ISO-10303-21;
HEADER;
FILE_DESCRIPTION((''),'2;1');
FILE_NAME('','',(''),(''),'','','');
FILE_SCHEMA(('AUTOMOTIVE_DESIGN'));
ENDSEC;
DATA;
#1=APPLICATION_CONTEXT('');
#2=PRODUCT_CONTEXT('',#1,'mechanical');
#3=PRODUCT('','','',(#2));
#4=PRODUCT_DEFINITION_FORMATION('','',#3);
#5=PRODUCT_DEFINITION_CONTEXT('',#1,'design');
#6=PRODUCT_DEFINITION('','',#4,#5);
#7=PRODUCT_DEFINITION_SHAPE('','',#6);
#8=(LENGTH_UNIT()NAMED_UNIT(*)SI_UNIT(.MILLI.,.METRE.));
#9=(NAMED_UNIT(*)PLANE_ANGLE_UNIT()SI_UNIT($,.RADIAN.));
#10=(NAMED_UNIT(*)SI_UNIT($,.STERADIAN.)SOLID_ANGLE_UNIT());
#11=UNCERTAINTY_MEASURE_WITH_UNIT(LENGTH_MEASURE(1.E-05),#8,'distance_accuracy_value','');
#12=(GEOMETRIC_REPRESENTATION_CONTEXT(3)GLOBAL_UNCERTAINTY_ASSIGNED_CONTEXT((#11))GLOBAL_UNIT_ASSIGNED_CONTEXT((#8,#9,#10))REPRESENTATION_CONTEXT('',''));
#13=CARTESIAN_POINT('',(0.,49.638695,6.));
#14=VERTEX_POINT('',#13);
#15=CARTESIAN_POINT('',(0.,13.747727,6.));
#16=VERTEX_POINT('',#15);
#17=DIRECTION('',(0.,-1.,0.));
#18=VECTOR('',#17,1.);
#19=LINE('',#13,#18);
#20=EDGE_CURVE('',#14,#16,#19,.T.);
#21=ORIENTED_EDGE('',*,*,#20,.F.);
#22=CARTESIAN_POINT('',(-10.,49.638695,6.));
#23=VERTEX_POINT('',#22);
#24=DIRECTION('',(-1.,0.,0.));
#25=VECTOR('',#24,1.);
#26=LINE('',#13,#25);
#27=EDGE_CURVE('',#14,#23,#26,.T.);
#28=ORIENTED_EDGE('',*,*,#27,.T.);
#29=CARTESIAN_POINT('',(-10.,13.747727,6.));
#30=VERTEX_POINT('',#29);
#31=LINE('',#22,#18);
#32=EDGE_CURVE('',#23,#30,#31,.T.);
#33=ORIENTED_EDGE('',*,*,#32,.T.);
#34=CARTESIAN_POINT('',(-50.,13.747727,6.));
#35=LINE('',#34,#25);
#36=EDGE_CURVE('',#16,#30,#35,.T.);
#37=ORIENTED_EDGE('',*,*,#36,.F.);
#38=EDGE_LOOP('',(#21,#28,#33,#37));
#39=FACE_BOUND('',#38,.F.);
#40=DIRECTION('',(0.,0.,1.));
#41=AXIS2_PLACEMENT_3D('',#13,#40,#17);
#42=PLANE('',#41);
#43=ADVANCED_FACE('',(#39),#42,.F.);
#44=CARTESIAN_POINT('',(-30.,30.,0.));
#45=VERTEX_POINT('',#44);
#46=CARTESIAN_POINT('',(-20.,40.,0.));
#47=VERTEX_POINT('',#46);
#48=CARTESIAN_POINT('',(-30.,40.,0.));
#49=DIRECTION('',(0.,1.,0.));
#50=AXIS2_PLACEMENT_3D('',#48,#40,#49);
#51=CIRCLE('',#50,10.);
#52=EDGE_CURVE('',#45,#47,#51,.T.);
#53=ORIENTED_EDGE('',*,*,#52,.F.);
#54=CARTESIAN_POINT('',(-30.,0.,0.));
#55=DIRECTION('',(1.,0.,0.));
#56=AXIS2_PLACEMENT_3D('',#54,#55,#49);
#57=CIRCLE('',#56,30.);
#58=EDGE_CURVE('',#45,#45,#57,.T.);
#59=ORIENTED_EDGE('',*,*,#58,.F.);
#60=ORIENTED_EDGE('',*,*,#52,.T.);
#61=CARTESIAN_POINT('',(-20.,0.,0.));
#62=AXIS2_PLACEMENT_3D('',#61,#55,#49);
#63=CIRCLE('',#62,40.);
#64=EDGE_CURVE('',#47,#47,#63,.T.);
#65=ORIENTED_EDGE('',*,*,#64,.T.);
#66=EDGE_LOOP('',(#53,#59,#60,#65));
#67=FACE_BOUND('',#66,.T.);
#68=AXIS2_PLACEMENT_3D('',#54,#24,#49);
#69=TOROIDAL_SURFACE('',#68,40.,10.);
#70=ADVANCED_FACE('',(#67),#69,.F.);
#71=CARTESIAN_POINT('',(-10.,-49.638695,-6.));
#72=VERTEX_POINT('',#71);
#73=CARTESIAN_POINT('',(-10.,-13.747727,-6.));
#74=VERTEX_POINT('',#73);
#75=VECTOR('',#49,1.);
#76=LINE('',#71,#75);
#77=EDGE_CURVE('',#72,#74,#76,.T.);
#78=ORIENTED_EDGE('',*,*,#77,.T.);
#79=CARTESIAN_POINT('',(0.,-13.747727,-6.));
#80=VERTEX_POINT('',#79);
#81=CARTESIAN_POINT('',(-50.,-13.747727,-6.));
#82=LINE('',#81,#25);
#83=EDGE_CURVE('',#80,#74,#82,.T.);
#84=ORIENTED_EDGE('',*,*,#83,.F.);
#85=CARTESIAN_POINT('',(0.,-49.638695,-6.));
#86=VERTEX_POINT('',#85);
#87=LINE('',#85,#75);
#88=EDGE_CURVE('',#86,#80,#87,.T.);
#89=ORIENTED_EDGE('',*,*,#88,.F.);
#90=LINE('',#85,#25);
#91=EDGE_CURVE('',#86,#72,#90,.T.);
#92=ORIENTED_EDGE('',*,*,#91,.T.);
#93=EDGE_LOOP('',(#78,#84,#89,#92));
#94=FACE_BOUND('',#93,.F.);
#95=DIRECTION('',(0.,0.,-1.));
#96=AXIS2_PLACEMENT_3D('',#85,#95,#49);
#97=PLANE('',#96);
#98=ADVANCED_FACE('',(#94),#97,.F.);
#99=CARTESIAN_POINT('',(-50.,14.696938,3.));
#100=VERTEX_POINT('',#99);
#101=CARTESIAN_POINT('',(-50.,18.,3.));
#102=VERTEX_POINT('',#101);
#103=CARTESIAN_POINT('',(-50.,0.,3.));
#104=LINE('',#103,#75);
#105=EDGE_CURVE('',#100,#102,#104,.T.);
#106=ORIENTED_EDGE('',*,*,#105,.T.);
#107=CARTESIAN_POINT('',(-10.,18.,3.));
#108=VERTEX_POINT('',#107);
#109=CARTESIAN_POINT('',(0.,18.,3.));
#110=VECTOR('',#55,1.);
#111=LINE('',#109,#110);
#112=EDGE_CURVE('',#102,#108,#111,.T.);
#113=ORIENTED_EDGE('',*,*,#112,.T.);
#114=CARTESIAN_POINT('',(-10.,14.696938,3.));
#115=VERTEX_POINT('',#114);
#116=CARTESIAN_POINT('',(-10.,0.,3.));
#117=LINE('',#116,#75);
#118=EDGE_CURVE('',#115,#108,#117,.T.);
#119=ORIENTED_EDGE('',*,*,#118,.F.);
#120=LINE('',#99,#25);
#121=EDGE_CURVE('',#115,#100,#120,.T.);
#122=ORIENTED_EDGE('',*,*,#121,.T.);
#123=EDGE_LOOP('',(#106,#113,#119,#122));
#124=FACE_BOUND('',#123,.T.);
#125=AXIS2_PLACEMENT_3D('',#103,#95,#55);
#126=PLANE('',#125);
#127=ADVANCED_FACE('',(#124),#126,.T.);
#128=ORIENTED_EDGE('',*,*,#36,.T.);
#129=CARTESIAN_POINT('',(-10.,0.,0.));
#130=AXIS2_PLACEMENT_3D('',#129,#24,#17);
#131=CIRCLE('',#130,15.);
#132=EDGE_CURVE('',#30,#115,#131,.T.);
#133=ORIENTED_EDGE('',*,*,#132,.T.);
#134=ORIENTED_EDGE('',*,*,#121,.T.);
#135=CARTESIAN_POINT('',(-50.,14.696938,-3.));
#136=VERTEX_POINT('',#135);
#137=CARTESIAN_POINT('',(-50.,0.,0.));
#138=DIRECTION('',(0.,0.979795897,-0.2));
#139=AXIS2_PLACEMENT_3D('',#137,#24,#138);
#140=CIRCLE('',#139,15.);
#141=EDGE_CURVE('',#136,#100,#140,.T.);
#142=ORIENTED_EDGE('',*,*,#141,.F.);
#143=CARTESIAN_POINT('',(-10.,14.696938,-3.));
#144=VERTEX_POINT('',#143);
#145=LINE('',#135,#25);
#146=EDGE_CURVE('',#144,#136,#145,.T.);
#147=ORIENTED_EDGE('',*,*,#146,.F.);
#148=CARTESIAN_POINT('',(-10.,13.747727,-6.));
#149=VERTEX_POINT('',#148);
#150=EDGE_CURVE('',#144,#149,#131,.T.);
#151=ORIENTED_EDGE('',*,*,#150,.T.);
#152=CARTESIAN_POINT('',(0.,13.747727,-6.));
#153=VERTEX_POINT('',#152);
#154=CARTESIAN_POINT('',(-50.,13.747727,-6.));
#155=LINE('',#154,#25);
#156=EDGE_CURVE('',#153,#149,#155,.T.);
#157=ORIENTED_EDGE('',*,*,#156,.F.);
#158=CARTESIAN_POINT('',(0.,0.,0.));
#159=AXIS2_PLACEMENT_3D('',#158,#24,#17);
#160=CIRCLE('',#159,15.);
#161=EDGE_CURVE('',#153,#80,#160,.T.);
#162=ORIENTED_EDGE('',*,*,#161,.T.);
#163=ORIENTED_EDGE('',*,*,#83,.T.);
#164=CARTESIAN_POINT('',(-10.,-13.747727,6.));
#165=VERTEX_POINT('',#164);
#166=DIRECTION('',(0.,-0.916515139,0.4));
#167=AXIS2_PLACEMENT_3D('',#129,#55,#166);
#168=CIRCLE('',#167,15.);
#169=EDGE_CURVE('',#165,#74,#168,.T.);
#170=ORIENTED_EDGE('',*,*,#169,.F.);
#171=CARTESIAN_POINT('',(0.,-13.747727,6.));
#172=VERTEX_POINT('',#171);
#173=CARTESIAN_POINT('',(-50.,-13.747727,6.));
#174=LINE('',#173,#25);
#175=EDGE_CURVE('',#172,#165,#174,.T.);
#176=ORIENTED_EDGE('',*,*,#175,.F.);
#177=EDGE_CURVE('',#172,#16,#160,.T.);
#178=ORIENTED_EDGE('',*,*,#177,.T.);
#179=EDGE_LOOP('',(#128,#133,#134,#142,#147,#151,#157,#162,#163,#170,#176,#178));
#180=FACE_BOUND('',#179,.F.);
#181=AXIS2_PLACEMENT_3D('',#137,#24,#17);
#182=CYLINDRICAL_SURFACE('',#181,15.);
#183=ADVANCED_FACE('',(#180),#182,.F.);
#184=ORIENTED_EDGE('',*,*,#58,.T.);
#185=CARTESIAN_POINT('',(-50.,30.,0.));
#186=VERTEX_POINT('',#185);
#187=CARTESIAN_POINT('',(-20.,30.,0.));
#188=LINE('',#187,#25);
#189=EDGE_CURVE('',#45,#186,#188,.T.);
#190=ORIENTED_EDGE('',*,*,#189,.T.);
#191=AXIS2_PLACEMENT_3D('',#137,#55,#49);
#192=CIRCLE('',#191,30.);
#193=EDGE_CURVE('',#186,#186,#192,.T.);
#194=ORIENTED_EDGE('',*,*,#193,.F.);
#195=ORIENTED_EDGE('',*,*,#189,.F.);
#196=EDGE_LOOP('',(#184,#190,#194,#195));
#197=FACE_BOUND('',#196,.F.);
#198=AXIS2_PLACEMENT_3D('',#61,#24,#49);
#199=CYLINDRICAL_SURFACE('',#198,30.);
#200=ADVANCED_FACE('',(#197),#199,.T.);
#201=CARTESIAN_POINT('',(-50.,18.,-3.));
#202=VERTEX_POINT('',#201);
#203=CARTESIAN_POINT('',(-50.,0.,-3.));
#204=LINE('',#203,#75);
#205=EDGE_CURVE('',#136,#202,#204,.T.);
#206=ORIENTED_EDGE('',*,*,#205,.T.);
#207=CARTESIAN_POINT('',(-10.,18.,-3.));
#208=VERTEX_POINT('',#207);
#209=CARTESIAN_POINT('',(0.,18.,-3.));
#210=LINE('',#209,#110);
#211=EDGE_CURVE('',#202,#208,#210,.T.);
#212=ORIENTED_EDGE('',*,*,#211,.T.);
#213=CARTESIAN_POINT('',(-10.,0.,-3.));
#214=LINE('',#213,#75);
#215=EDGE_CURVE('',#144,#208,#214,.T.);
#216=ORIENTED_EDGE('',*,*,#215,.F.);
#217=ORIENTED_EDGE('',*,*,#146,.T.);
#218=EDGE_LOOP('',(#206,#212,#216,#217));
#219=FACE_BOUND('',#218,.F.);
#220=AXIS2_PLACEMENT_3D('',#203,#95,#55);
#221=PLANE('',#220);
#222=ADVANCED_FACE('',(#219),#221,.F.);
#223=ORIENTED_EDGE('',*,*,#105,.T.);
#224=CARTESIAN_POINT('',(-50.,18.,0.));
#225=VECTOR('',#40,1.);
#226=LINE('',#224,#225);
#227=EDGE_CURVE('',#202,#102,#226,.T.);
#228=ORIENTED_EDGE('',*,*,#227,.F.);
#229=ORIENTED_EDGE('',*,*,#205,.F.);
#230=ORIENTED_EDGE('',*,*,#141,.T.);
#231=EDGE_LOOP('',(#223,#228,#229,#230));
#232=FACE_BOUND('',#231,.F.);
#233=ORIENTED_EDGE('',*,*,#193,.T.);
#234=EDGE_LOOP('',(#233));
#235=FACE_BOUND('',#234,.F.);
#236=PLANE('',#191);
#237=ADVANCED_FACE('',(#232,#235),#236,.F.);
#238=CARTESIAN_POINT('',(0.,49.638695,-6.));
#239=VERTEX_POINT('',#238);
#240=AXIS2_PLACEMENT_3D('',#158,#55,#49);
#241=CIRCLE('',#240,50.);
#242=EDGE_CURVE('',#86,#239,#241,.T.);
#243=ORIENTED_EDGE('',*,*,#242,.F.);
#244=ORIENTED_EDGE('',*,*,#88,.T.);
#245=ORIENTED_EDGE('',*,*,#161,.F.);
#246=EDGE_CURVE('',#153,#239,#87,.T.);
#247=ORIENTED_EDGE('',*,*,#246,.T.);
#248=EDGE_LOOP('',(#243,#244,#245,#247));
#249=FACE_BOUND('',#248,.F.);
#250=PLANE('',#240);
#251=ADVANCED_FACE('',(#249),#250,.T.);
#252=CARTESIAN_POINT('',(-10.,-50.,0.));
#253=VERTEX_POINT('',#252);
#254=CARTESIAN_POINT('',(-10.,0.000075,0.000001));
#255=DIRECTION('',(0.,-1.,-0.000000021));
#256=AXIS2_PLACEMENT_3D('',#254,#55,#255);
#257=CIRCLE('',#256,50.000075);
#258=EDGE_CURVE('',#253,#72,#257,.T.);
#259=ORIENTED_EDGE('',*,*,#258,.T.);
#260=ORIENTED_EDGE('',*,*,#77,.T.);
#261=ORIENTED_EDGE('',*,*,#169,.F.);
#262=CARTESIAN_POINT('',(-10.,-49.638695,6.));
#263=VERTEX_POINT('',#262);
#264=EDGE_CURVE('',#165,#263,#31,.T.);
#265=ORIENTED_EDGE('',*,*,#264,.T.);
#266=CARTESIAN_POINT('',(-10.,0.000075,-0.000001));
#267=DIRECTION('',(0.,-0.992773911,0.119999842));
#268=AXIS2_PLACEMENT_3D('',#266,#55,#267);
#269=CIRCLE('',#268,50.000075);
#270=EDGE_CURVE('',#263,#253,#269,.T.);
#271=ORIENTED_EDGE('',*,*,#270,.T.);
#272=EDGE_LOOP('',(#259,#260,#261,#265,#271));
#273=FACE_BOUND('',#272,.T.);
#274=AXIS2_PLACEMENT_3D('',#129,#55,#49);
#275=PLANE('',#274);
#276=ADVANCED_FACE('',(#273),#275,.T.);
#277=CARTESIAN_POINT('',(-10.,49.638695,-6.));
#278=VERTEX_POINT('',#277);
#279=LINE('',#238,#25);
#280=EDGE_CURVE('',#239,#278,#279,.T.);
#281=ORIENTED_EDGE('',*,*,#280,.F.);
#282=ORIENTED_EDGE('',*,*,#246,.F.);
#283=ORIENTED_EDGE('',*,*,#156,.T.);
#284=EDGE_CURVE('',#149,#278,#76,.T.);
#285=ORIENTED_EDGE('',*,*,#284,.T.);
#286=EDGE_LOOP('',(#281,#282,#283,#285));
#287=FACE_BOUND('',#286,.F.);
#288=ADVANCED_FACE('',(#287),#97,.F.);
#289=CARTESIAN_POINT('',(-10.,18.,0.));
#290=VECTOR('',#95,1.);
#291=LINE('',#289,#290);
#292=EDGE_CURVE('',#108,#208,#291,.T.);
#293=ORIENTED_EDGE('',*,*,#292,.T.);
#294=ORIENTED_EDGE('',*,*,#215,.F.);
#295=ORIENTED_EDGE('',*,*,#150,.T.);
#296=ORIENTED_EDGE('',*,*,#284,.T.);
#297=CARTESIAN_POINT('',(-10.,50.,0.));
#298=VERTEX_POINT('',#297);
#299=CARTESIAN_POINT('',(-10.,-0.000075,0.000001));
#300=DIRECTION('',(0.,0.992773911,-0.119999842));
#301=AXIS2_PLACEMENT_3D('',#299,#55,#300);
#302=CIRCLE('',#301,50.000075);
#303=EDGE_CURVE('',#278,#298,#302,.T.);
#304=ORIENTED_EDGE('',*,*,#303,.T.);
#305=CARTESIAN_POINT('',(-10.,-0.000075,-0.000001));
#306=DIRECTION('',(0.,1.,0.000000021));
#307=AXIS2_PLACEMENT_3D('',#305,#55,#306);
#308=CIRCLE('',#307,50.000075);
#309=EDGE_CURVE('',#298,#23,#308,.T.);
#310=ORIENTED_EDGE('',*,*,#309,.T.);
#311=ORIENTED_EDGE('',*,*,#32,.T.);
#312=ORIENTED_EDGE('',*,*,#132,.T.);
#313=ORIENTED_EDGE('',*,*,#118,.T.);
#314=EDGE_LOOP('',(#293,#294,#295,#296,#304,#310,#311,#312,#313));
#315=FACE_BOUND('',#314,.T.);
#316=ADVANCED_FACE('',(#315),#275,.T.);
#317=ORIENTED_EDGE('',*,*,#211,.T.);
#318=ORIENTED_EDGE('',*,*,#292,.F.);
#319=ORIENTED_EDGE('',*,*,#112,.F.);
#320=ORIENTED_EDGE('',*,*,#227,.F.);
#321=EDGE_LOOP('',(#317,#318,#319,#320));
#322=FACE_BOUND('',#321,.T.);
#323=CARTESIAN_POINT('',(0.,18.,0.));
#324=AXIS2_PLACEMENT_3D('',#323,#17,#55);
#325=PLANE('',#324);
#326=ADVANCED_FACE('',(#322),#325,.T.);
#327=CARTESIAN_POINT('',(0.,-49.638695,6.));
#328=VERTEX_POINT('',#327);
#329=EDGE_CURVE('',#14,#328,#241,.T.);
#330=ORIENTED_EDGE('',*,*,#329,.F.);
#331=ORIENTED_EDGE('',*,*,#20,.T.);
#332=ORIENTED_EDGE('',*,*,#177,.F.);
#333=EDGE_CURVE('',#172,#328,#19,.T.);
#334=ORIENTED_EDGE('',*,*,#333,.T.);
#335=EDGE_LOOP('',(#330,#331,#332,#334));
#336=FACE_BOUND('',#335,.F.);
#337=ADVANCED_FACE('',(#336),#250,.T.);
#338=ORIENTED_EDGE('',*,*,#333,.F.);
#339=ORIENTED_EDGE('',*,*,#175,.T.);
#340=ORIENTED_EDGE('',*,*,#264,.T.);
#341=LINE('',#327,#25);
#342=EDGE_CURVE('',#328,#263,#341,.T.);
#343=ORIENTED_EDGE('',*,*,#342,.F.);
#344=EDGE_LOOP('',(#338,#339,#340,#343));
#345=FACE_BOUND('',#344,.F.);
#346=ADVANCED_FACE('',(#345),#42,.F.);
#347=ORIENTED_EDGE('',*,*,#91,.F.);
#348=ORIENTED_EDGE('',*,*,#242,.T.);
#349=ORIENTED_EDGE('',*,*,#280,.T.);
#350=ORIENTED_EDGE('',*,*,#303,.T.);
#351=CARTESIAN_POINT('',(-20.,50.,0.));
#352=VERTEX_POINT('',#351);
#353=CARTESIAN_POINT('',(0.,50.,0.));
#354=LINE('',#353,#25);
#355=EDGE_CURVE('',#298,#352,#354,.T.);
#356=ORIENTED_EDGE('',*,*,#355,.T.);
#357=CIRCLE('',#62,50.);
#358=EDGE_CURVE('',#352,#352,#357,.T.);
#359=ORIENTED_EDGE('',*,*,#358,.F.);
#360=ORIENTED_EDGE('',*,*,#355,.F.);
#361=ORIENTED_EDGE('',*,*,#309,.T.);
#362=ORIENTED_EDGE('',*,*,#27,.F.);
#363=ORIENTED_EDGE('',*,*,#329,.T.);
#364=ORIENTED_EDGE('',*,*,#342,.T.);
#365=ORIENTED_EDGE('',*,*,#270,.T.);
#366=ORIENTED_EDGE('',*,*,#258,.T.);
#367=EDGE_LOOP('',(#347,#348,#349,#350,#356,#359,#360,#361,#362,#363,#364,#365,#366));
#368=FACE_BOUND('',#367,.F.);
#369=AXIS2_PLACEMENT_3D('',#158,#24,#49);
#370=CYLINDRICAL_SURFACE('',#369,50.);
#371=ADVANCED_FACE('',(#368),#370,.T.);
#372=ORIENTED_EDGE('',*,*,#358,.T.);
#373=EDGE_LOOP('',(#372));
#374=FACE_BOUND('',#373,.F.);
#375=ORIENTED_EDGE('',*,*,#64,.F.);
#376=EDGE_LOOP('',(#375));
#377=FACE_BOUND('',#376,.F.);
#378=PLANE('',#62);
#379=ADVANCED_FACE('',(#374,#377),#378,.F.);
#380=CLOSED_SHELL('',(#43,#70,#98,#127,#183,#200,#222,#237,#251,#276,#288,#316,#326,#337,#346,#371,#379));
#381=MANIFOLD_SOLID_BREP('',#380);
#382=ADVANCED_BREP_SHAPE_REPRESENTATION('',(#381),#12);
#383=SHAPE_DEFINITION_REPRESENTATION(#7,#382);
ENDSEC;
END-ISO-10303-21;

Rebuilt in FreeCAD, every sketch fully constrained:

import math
import FreeCAD as App
import Part
import Sketcher
Q = App.Units.Quantity


def edges_at(feature, points):
    """Names of the edges that pass closest to the given points."""
    edges = feature.Shape.Edges
    near = lambda p: min(range(len(edges)), key=lambda i: edges[i].distToShape(Part.Vertex(*p))[0])
    return sorted({f"Edge{near(p) + 1}" for p in points})


def add_polygon(sketch, points):
    """Adds a closed chain of lines whose ends are joined by coincident constraints."""
    first, n = sketch.GeometryCount, len(points)
    for a, b in zip(points, points[1:] + points[:1]):
        sketch.addGeometry(Part.LineSegment(App.Vector(*a, 0), App.Vector(*b, 0)), False)
    for i in range(n):
        sketch.addConstraint(Sketcher.Constraint("Coincident", first + i, 2, first + (i + 1) % n, 1))

doc = App.newDocument("Part")
params = doc.addObject("Spreadsheet::Sheet", "Params")
for row, (alias, value) in enumerate([
    ("sketch1_width", "50 mm"),
    ("sketch1_width2", "20 mm"),
    ("revolution_angle", "360 deg"),
    ("pocket1_length", "10 mm"),
    ("sketch3_diameter", "30 mm"),
    ("pocket2_length", "52.4 mm"),
    ("sketch4_width", "100 mm"),
    ("sketch4_height", "6 mm"),
    ("pocket3_length", "18 mm"),
    ("fillet_radius", "10 mm"),
], start=1):
    params.set(f"A{row}", alias)
    params.set(f"B{row}", "=" + value)
    params.setAlias(f"B{row}", alias)

body = doc.addObject("PartDesign::Body", "Body")

# Sketch on XY plane
sketch1 = body.newObject("Sketcher::SketchObject", "Sketch")
sketch1.AttachmentSupport = (doc.getObject("XY_Plane"), [""])
sketch1.MapMode = "FlatFace"
add_polygon(sketch1, [(-50, 0), (0, 0), (0, 50), (-20, 50), (-20, 30), (-50, 30)])  # lines 0-5
sketch1.addConstraint([
    Sketcher.Constraint("Horizontal", 0),
    Sketcher.Constraint("Vertical", 1),
    Sketcher.Constraint("Horizontal", 2),
    Sketcher.Constraint("Vertical", 3),
    Sketcher.Constraint("Horizontal", 4),
    Sketcher.Constraint("Vertical", 5),
    Sketcher.Constraint("Coincident", 0, 2, -1, 1),
    Sketcher.Constraint("Equal", 0, 1),
    Sketcher.Constraint("Equal", 2, 3),
    Sketcher.Constraint("DistanceX", 0, 1, 0, 2, Q("50 mm")),
    Sketcher.Constraint("DistanceX", 2, 2, 2, 1, Q("20 mm")),
])
sketch1.setExpression("Constraints[15]", "Params.sketch1_width")
sketch1.setExpression("Constraints[16]", "Params.sketch1_width2")
revolution = body.newObject("PartDesign::Revolution", "Revolution")
revolution.Profile = sketch1
revolution.ReferenceAxis = (sketch1, ["H_Axis"])
revolution.setExpression("Angle", "Params.revolution_angle")

# Sketch on YZ plane
sketch2 = body.newObject("Sketcher::SketchObject", "Sketch001")
sketch2.AttachmentSupport = (doc.getObject("YZ_Plane"), [""])
sketch2.MapMode = "FlatFace"
sketch2.addGeometry([
    Part.LineSegment(App.Vector(49.638695, 6, 0), App.Vector(-49.638695, 6, 0)),  # 0
    Part.ArcOfCircle(Part.Circle(App.Vector(0.000075, -0.000001, 0), App.Vector(0, 0, 1), 50.000075), math.radians(173.107907), math.radians(179.999999)),  # 1
    Part.ArcOfCircle(Part.Circle(App.Vector(0.000075, 0.000001, 0), App.Vector(0, 0, 1), 50.000075), math.radians(-179.999999), math.radians(-173.107907)),  # 2
    Part.LineSegment(App.Vector(-49.638695, -6, 0), App.Vector(49.638695, -6, 0)),  # 3
    Part.ArcOfCircle(Part.Circle(App.Vector(-0.000075, 0.000001, 0), App.Vector(0, 0, 1), 50.000075), math.radians(-6.892093), math.radians(-0.000001)),  # 4
    Part.ArcOfCircle(Part.Circle(App.Vector(-0.000075, -0.000001, 0), App.Vector(0, 0, 1), 50.000075), math.radians(0.000001), math.radians(6.892093)),  # 5
], False)
sketch2.addConstraint([
    Sketcher.Constraint("Coincident", 0, 2, 1, 1),
    Sketcher.Constraint("Tangent", 1, 2, 2, 1),
    Sketcher.Constraint("Coincident", 2, 2, 3, 1),
    Sketcher.Constraint("Coincident", 3, 2, 4, 1),
    Sketcher.Constraint("Tangent", 4, 2, 5, 1),
    Sketcher.Constraint("Coincident", 5, 2, 0, 1),
    Sketcher.Constraint("Horizontal", 0),
    Sketcher.Constraint("Horizontal", 3),
    Sketcher.Constraint("Equal", 1, 2),
    Sketcher.Constraint("Equal", 2, 4),
    Sketcher.Constraint("Equal", 4, 5),
    Sketcher.Constraint("Symmetric", 1, 3, 4, 3, -1, 1),
    Sketcher.Constraint("Symmetric", 0, 2, 2, 2, -1),
    Sketcher.Constraint("PointOnObject", 1, 2, -1),
    Sketcher.Constraint("PointOnObject", 4, 2, -1),
    Sketcher.Constraint("DistanceY", -1, 1, 0, 2, Q("6 mm")),
    Sketcher.Constraint("DistanceX", 1, 2, -1, 1, Q("50 mm")),
    Sketcher.Constraint("Radius", 1, Q("50.000075 mm")),
])
pocket1 = body.newObject("PartDesign::Pocket", "Pocket")
pocket1.Profile = sketch2
pocket1.setExpression("Length", "Params.pocket1_length")

# Sketch on YZ plane
sketch3 = body.newObject("Sketcher::SketchObject", "Sketch002")
sketch3.AttachmentSupport = (doc.getObject("YZ_Plane"), [""])
sketch3.MapMode = "FlatFace"
sketch3.AttachmentOffset = App.Placement(App.Vector(0, 0, -50), App.Rotation())
sketch3.addGeometry(Part.Circle(App.Vector(0, 0, 0), App.Vector(0, 0, 1), 15), False)
sketch3.addConstraint([
    Sketcher.Constraint("Coincident", 0, 3, -1, 1),
    Sketcher.Constraint("Diameter", 0, Q("30 mm")),
])
sketch3.setExpression("Constraints[1]", "Params.sketch3_diameter")
pocket2 = body.newObject("PartDesign::Pocket", "Pocket001")
pocket2.Profile = sketch3
pocket2.setExpression("Length", "Params.pocket2_length")
pocket2.Reversed = True

# Sketch on XZ plane
sketch4 = body.newObject("Sketcher::SketchObject", "Sketch003")
sketch4.AttachmentSupport = (doc.getObject("XZ_Plane"), [""])
sketch4.MapMode = "FlatFace"
add_polygon(sketch4, [(-50, 3), (-50, -3), (50, -3), (50, 3)])  # lines 0-3
sketch4.addConstraint([
    Sketcher.Constraint("Vertical", 0),
    Sketcher.Constraint("Horizontal", 1),
    Sketcher.Constraint("Vertical", 2),
    Sketcher.Constraint("Horizontal", 3),
    Sketcher.Constraint("Symmetric", 0, 2, 2, 2, -1, 1),
    Sketcher.Constraint("DistanceX", 1, 1, 1, 2, Q("100 mm")),
    Sketcher.Constraint("DistanceY", 0, 2, 0, 1, Q("6 mm")),
])
sketch4.setExpression("Constraints[9]", "Params.sketch4_width")
sketch4.setExpression("Constraints[10]", "Params.sketch4_height")
pocket3 = body.newObject("PartDesign::Pocket", "Pocket002")
pocket3.Profile = sketch4
pocket3.setExpression("Length", "Params.pocket3_length")
doc.recompute()

fillet = body.newObject("PartDesign::Fillet", "Fillet")
fillet.Base = (pocket3, edges_at(pocket3, [(-20, -30, 0)]))
fillet.setExpression("Radius", "Params.fillet_radius")

doc.recompute()
